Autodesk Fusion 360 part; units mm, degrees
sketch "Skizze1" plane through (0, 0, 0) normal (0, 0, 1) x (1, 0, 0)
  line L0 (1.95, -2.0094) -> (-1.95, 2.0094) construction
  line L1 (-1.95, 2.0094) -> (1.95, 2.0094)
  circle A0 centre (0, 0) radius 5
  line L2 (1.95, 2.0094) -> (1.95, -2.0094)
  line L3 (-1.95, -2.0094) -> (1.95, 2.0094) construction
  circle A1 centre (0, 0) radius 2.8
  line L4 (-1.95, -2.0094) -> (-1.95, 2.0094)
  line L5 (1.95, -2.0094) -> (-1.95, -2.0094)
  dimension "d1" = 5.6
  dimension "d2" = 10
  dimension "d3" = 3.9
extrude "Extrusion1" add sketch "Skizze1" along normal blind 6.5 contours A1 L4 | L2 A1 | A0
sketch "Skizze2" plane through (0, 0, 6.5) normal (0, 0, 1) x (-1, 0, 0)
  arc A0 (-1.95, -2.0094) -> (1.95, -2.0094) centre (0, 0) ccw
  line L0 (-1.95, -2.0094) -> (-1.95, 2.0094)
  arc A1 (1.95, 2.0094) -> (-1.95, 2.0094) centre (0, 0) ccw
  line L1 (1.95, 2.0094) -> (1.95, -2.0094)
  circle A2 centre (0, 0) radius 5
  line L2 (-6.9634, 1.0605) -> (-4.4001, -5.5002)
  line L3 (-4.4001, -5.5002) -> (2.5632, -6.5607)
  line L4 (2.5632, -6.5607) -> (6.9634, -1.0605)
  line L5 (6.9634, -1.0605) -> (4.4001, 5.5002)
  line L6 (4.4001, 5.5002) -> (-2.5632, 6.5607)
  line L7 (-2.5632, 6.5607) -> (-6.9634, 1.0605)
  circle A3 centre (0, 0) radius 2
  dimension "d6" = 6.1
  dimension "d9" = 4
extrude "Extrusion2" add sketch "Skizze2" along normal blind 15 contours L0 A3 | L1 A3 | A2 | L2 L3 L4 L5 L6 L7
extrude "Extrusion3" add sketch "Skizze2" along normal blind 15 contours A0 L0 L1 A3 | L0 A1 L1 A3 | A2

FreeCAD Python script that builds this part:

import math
import FreeCAD as App
import Part
import Sketcher

V = App.Vector
Q = App.Units.Quantity


def add_polygon(sketch, points):
    """Adds a closed chain of lines whose ends are joined by coincident constraints."""
    first, n = sketch.GeometryCount, len(points)
    for a, b in zip(points, points[1:] + points[:1]):
        sketch.addGeometry(Part.LineSegment(App.Vector(*a, 0), App.Vector(*b, 0)), False)
    for i in range(n):
        sketch.addConstraint(Sketcher.Constraint("Coincident", first + i, 2, first + (i + 1) % n, 1))

doc = App.newDocument("Part")
body = doc.addObject("PartDesign::Body", "Body")

# Sketch on XY plane
sketch1 = body.newObject("Sketcher::SketchObject", "Sketch")
sketch1.AttachmentSupport = (doc.getObject("XY_Plane"), [""])
sketch1.MapMode = "FlatFace"
sketch1.addGeometry([
    Part.Circle(V(0, 0, 0), V(0, 0, 1), 5),  # 0
    Part.LineSegment(V(-1.9, -2, 0), V(-1.9, 2, 0)),  # 1
    Part.ArcOfCircle(Part.Circle(V(0, 0, 0), V(0, 0, 1), 2.8), math.radians(46), math.radians(134)),  # 2
    Part.LineSegment(V(1.9, 2, 0), V(1.9, -2, 0)),  # 3
    Part.ArcOfCircle(Part.Circle(V(0, 0, 0), V(0, 0, 1), 2.8), math.radians(-134), math.radians(-46)),  # 4
], False)
sketch1.addConstraint([
    Sketcher.Constraint("Coincident", 1, 2, 2, 2),
    Sketcher.Constraint("Coincident", 2, 1, 3, 1),
    Sketcher.Constraint("Coincident", 3, 2, 4, 2),
    Sketcher.Constraint("Coincident", 4, 1, 1, 1),
    Sketcher.Constraint("Vertical", 1),
    Sketcher.Constraint("Vertical", 3),
    Sketcher.Constraint("Coincident", 0, 3, -1, 1),
    Sketcher.Constraint("Coincident", 2, 3, -1, 1),
    Sketcher.Constraint("Coincident", 4, 3, -1, 1),
    Sketcher.Constraint("Equal", 2, 4),
    Sketcher.Constraint("Horizontal", 1, 2, 2, 1),
    Sketcher.Constraint("Diameter", 0, 10.0),
    Sketcher.Constraint("Radius", 2, 2.8),
    Sketcher.Constraint("DistanceX", 1, 2, 2, 1, 3.9),
])
pad1 = body.newObject("PartDesign::Pad", "Pad")
pad1.Profile = sketch1
pad1.Length = 6.5

# Sketch on XY plane
sketch2 = body.newObject("Sketcher::SketchObject", "Sketch001")
sketch2.AttachmentSupport = (doc.getObject("XY_Plane"), [""])
sketch2.MapMode = "FlatFace"
sketch2.AttachmentOffset = App.Placement(V(0, 0, 6.5), App.Rotation())
add_polygon(sketch2, [(2.6, -6.6), (7, -1.1), (4.4, 5.5), (-2.6, 6.6), (-7, 1.1), (-4.4, -5.5)])  # lines 0-5
sketch2.addGeometry(Part.ArcOfCircle(Part.Circle(V(0, 0, 0), V(0, 0, 1), 2.8), math.radians(-134), math.radians(-46)), False)  # 6
sketch2.addGeometry(Part.LineSegment(V(-1.9, -2, 0), V(-1.9, 2, 0)), False)  # 7
sketch2.addGeometry(Part.ArcOfCircle(Part.Circle(V(0, 0, 0), V(0, 0, 1), 2.8), math.radians(46), math.radians(134)), False)  # 8
sketch2.addGeometry(Part.LineSegment(V(1.9, 2, 0), V(1.9, -2, 0)), False)  # 9
sketch2.addConstraint([
    Sketcher.Constraint("Coincident", 6, 1, 7, 1),
    Sketcher.Constraint("Coincident", 7, 2, 8, 2),
    Sketcher.Constraint("Coincident", 8, 1, 9, 1),
    Sketcher.Constraint("Coincident", 9, 2, 6, 2),
    Sketcher.Constraint("Vertical", 7),
    Sketcher.Constraint("Vertical", 9),
    Sketcher.Constraint("Coincident", 6, 3, -1, 1),
    Sketcher.Constraint("Coincident", 8, 3, -1, 1),
    Sketcher.Constraint("Equal", 6, 8),
    Sketcher.Constraint("Symmetric", 0, 2, 3, 2, -1, 1),
    Sketcher.Constraint("Symmetric", 1, 2, 4, 2, -1, 1),
    Sketcher.Constraint("Symmetric", 2, 2, 5, 2, -1, 1),
    Sketcher.Constraint("Horizontal", 7, 2, 8, 1),
    Sketcher.Constraint("Equal", 0, 1),
    Sketcher.Constraint("Equal", 1, 2),
    Sketcher.Constraint("Radius", 6, 2.8),
    Sketcher.Constraint("DistanceX", -1, 1, 1, 2, 4.4),
    Sketcher.Constraint("Angle", 0, Q("51.34 deg")),
    Sketcher.Constraint("Angle", 1, Q("111.3408 deg")),
    Sketcher.Constraint("Angle", 2, Q("171.3405 deg")),
    Sketcher.Constraint("DistanceX", 7, 2, 8, 1, 3.9),
])
pad2 = body.newObject("PartDesign::Pad", "Pad001")
pad2.Profile = sketch2
pad2.Length = 15

# Sketch on XY plane
sketch3 = body.newObject("Sketcher::SketchObject", "Sketch002")
sketch3.AttachmentSupport = (doc.getObject("XY_Plane"), [""])
sketch3.MapMode = "FlatFace"
sketch3.AttachmentOffset = App.Placement(V(0, 0, 6.5), App.Rotation())
sketch3.addGeometry([
    Part.Circle(V(0, 0, 0), V(0, 0, 1), 5),
    Part.Circle(V(0, 0, 0), V(0, 0, 1), 2),
], False)
sketch3.addConstraint([
    Sketcher.Constraint("Coincident", 0, 3, -1, 1),
    Sketcher.Constraint("Coincident", 1, 3, -1, 1),
    Sketcher.Constraint("Diameter", 1, 4.0),
    Sketcher.Constraint("Diameter", 0, 10.0),
])
pad3 = body.newObject("PartDesign::Pad", "Pad002")
pad3.Profile = sketch3
pad3.Length = 15

doc.recompute()
